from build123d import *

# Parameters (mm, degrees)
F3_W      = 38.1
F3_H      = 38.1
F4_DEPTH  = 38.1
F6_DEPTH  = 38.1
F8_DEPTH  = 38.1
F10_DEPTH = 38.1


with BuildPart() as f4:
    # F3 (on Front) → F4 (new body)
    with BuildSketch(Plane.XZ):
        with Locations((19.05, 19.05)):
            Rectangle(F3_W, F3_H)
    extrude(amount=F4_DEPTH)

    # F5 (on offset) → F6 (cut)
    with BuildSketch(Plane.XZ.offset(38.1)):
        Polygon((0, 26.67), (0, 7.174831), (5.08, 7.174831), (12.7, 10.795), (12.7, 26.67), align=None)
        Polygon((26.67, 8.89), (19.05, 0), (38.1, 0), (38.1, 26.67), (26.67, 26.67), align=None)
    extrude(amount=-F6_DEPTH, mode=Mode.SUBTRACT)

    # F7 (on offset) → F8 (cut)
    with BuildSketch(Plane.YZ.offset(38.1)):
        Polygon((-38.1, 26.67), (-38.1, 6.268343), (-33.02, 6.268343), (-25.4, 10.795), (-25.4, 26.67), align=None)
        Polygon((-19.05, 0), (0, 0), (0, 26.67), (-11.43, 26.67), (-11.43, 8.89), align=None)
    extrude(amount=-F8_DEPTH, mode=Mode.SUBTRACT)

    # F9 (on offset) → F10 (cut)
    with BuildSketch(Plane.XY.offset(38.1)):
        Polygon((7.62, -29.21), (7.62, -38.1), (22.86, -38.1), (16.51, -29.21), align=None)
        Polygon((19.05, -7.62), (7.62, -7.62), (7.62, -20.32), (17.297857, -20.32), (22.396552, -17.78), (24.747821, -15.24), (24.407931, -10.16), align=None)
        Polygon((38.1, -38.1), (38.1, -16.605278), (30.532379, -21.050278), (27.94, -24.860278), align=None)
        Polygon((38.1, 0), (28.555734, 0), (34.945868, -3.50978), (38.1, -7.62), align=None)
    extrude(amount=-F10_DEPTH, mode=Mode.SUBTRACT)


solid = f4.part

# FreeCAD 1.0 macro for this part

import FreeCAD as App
import Part
import Sketcher

V = App.Vector
Q = App.Units.Quantity

doc = App.newDocument("Part")
body = doc.addObject("PartDesign::Body", "Body")

sketch1 = body.newObject("Sketcher::SketchObject", "Sketch")
sketch1.AttachmentSupport = (doc.getObject("XZ_Plane"), [""])
sketch1.MapMode = "FlatFace"
sketch1.addGeometry([
    Part.LineSegment(V(0, 38, 0), V(0, 0, 0)),
    Part.LineSegment(V(0, 0, 0), V(38, 0, 0)),
    Part.LineSegment(V(38, 0, 0), V(38, 38, 0)),
    Part.LineSegment(V(38, 38, 0), V(0, 38, 0)),
], False)
sketch1.addConstraint([
    Sketcher.Constraint("Coincident", 0, 2, 1, 1),
    Sketcher.Constraint("Coincident", 1, 2, 2, 1),
    Sketcher.Constraint("Coincident", 2, 2, 3, 1),
    Sketcher.Constraint("Coincident", 3, 2, 0, 1),
    Sketcher.Constraint("Vertical", 0),
    Sketcher.Constraint("Horizontal", 1),
    Sketcher.Constraint("Vertical", 2),
    Sketcher.Constraint("Horizontal", 3),
    Sketcher.Constraint("Coincident", 0, 2, -1, 1),
    Sketcher.Constraint("Equal", 3, 0),
    Sketcher.Constraint("DistanceX", 1, 1, 1, 2, Q("1.5 in")),
])
pad1 = body.newObject("PartDesign::Pad", "Pad")
pad1.Profile = sketch1
pad1.Length = Q("1.5 in")

sketch2 = body.newObject("Sketcher::SketchObject", "Sketch001")
sketch2.AttachmentSupport = (doc.getObject("XZ_Plane"), [""])
sketch2.MapMode = "FlatFace"
sketch2.AttachmentOffset = App.Placement(V(0, 0, 1.5 * 25.4), App.Rotation())
sketch2.addGeometry([
    Part.LineSegment(V(0, 27, 0), V(0, 7, 0)),
    Part.LineSegment(V(0, 7, 0), V(5, 7, 0)),
    Part.LineSegment(V(5, 7, 0), V(13, 11, 0)),
    Part.LineSegment(V(13, 11, 0), V(13, 27, 0)),
    Part.LineSegment(V(13, 27, 0), V(0, 27, 0)),
    Part.LineSegment(V(27, 9, 0), V(19, 0, 0)),
    Part.LineSegment(V(19, 0, 0), V(38, 0, 0)),
    Part.LineSegment(V(38, 0, 0), V(38, 27, 0)),
    Part.LineSegment(V(38, 27, 0), V(27, 27, 0)),
    Part.LineSegment(V(27, 27, 0), V(27, 9, 0)),
], False)
sketch2.addConstraint([
    Sketcher.Constraint("Coincident", 0, 2, 1, 1),
    Sketcher.Constraint("Coincident", 1, 2, 2, 1),
    Sketcher.Constraint("Coincident", 2, 2, 3, 1),
    Sketcher.Constraint("Coincident", 3, 2, 4, 1),
    Sketcher.Constraint("Coincident", 4, 2, 0, 1),
    Sketcher.Constraint("Coincident", 5, 2, 6, 1),
    Sketcher.Constraint("Coincident", 6, 2, 7, 1),
    Sketcher.Constraint("Coincident", 7, 2, 8, 1),
    Sketcher.Constraint("Coincident", 8, 2, 9, 1),
    Sketcher.Constraint("Coincident", 9, 2, 5, 1),
    Sketcher.Constraint("Vertical", 0),
    Sketcher.Constraint("Horizontal", 1),
    Sketcher.Constraint("Vertical", 3),
    Sketcher.Constraint("Horizontal", 4),
    Sketcher.Constraint("Horizontal", 6),
    Sketcher.Constraint("Vertical", 7),
    Sketcher.Constraint("Horizontal", 8),
    Sketcher.Constraint("Vertical", 9),
    Sketcher.Constraint("PointOnObject", 0, 2, -2),
    Sketcher.Constraint("PointOnObject", 5, 2, -1),
    Sketcher.Constraint("Horizontal", 4, 2, 7, 2),
    Sketcher.Constraint("DistanceX", 1, 1, 1, 2, Q("0.2 in")),
    Sketcher.Constraint("DistanceX", 4, 2, 4, 1, Q("0.5 in")),
    Sketcher.Constraint("DistanceY", 9, 2, 9, 1, Q("0.7 in")),
    Sketcher.Constraint("DistanceX", 2, 2, 6, 2, Q("1 in")),
    Sketcher.Constraint("DistanceX", 6, 1, 6, 2, Q("0.75 in")),
    Sketcher.Constraint("DistanceX", 8, 2, 8, 1, Q("0.45 in")),
    Sketcher.Constraint("DistanceY", 7, 1, 7, 2, Q("1.05 in")),
    Sketcher.Constraint("DistanceY", 3, 1, 3, 2, Q("0.625 in")),
    Sketcher.Constraint("DistanceY", 0, 2, 0, 1, 19.495169),
])
pocket1 = body.newObject("PartDesign::Pocket", "Pocket")
pocket1.Profile = sketch2
pocket1.Length = Q("1.5 in")

sketch3 = body.newObject("Sketcher::SketchObject", "Sketch002")
sketch3.AttachmentSupport = (doc.getObject("YZ_Plane"), [""])
sketch3.MapMode = "FlatFace"
sketch3.AttachmentOffset = App.Placement(V(0, 0, 1.5 * 25.4), App.Rotation())
sketch3.addGeometry([
    Part.LineSegment(V(-38, 27, 0), V(-38, 6, 0)),
    Part.LineSegment(V(-38, 6, 0), V(-33, 6, 0)),
    Part.LineSegment(V(-33, 6, 0), V(-25, 11, 0)),
    Part.LineSegment(V(-25, 11, 0), V(-25, 27, 0)),
    Part.LineSegment(V(-25, 27, 0), V(-38, 27, 0)),
    Part.LineSegment(V(-19, 0, 0), V(0, 0, 0)),
    Part.LineSegment(V(0, 0, 0), V(0, 27, 0)),
    Part.LineSegment(V(0, 27, 0), V(-11, 27, 0)),
    Part.LineSegment(V(-11, 27, 0), V(-11, 9, 0)),
    Part.LineSegment(V(-11, 9, 0), V(-19, 0, 0)),
], False)
sketch3.addConstraint([
    Sketcher.Constraint("Coincident", 0, 2, 1, 1),
    Sketcher.Constraint("Coincident", 1, 2, 2, 1),
    Sketcher.Constraint("Coincident", 2, 2, 3, 1),
    Sketcher.Constraint("Coincident", 3, 2, 4, 1),
    Sketcher.Constraint("Coincident", 4, 2, 0, 1),
    Sketcher.Constraint("Coincident", 5, 2, 6, 1),
    Sketcher.Constraint("Coincident", 6, 2, 7, 1),
    Sketcher.Constraint("Coincident", 7, 2, 8, 1),
    Sketcher.Constraint("Coincident", 8, 2, 9, 1),
    Sketcher.Constraint("Coincident", 9, 2, 5, 1),
    Sketcher.Constraint("Vertical", 0),
    Sketcher.Constraint("Horizontal", 1),
    Sketcher.Constraint("Vertical", 3),
    Sketcher.Constraint("Horizontal", 4),
    Sketcher.Constraint("Horizontal", 5),
    Sketcher.Constraint("Vertical", 6),
    Sketcher.Constraint("Horizontal", 7),
    Sketcher.Constraint("Vertical", 8),
    Sketcher.Constraint("Coincident", 5, 2, -1, 1),
    Sketcher.Constraint("Horizontal", 4, 2, 6, 2),
    Sketcher.Constraint("DistanceX", 1, 1, 1, 2, Q("0.2 in")),
    Sketcher.Constraint("DistanceX", 4, 2, 4, 1, Q("0.5 in")),
    Sketcher.Constraint("DistanceY", 8, 2, 8, 1, Q("0.7 in")),
    Sketcher.Constraint("DistanceX", 2, 2, -1, 1, Q("1 in")),
    Sketcher.Constraint("DistanceX", 5, 1, 5, 2, Q("0.75 in")),
    Sketcher.Constraint("DistanceX", 7, 2, 7, 1, Q("0.45 in")),
    Sketcher.Constraint("DistanceY", 6, 1, 6, 2, Q("1.05 in")),
    Sketcher.Constraint("DistanceY", 3, 1, 3, 2, Q("0.625 in")),
    Sketcher.Constraint("DistanceY", 0, 2, 0, 1, 20.401657),
])
pocket2 = body.newObject("PartDesign::Pocket", "Pocket001")
pocket2.Profile = sketch3
pocket2.Length = Q("1.5 in")

sketch4 = body.newObject("Sketcher::SketchObject", "Sketch003")
sketch4.AttachmentSupport = (doc.getObject("XY_Plane"), [""])
sketch4.MapMode = "FlatFace"
sketch4.AttachmentOffset = App.Placement(V(0, 0, 1.5 * 25.4), App.Rotation())
sketch4.addGeometry([
    Part.LineSegment(V(7.6, -29.2, 0), V(7.6, -38.1, 0)),
    Part.LineSegment(V(7.6, -38.1, 0), V(22.9, -38.1, 0)),
    Part.LineSegment(V(22.9, -38.1, 0), V(16.5, -29.2, 0)),
    Part.LineSegment(V(16.5, -29.2, 0), V(7.6, -29.2, 0)),
    Part.LineSegment(V(19.1, -7.6, 0), V(7.6, -7.6, 0)),
    Part.LineSegment(V(7.6, -7.6, 0), V(7.6, -20.3, 0)),
    Part.LineSegment(V(7.6, -20.3, 0), V(17.3, -20.3, 0)),
    Part.LineSegment(V(17.3, -20.3, 0), V(22.4, -17.8, 0)),
    Part.LineSegment(V(22.4, -17.8, 0), V(24.7, -15.2, 0)),
    Part.LineSegment(V(24.7, -15.2, 0), V(24.4, -10.2, 0)),
    Part.LineSegment(V(24.4, -10.2, 0), V(19.1, -7.6, 0)),
    Part.LineSegment(V(38.1, -38.1, 0), V(38.1, -16.6, 0)),
    Part.LineSegment(V(38.1, -16.6, 0), V(30.5, -21.1, 0)),
    Part.LineSegment(V(30.5, -21.1, 0), V(27.9, -24.9, 0)),
    Part.LineSegment(V(27.9, -24.9, 0), V(38.1, -38.1, 0)),
    Part.LineSegment(V(38.1, 0, 0), V(28.6, 0, 0)),
    Part.LineSegment(V(28.6, 0, 0), V(34.9, -3.5, 0)),
    Part.LineSegment(V(34.9, -3.5, 0), V(38.1, -7.6, 0)),
    Part.LineSegment(V(38.1, -7.6, 0), V(38.1, 0, 0)),
], False)
sketch4.addConstraint([
    Sketcher.Constraint("Coincident", 0, 2, 1, 1),
    Sketcher.Constraint("Coincident", 1, 2, 2, 1),
    Sketcher.Constraint("Coincident", 2, 2, 3, 1),
    Sketcher.Constraint("Coincident", 3, 2, 0, 1),
    Sketcher.Constraint("Coincident", 4, 2, 5, 1),
    Sketcher.Constraint("Coincident", 5, 2, 6, 1),
    Sketcher.Constraint("Coincident", 6, 2, 7, 1),
    Sketcher.Constraint("Coincident", 7, 2, 8, 1),
    Sketcher.Constraint("Coincident", 8, 2, 9, 1),
    Sketcher.Constraint("Coincident", 9, 2, 10, 1),
    Sketcher.Constraint("Coincident", 10, 2, 4, 1),
    Sketcher.Constraint("Coincident", 11, 2, 12, 1),
    Sketcher.Constraint("Coincident", 12, 2, 13, 1),
    Sketcher.Constraint("Coincident", 13, 2, 14, 1),
    Sketcher.Constraint("Coincident", 14, 2, 11, 1),
    Sketcher.Constraint("Coincident", 15, 2, 16, 1),
    Sketcher.Constraint("Coincident", 16, 2, 17, 1),
    Sketcher.Constraint("Coincident", 17, 2, 18, 1),
    Sketcher.Constraint("Coincident", 18, 2, 15, 1),
    Sketcher.Constraint("Vertical", 0),
    Sketcher.Constraint("Horizontal", 1),
    Sketcher.Constraint("Horizontal", 3),
    Sketcher.Constraint("Horizontal", 4),
    Sketcher.Constraint("Vertical", 5),
    Sketcher.Constraint("Horizontal", 6),
    Sketcher.Constraint("Vertical", 11),
    Sketcher.Constraint("Horizontal", 15),
    Sketcher.Constraint("Vertical", 18),
    Sketcher.Constraint("PointOnObject", 15, 2, -1),
    Sketcher.Constraint("Parallel", 14, 17),
    Sketcher.Constraint("Horizontal", 1, 2, 14, 2),
    Sketcher.Constraint("Horizontal", 10, 2, 17, 2),
    Sketcher.Constraint("Vertical", 3, 2, 4, 2),
    Sketcher.Constraint("Vertical", 14, 2, 17, 2),
    Sketcher.Constraint("Equal", 3, 0),
    Sketcher.Constraint("DistanceX", 1, 1, 1, 2, Q("0.6 in")),
    Sketcher.Constraint("DistanceY", 5, 2, 5, 1, Q("0.5 in")),
    Sketcher.Constraint("DistanceY", 18, 1, 18, 2, Q("0.3 in")),
    Sketcher.Constraint("DistanceX", 3, 2, 3, 1, Q("0.35 in")),
    Sketcher.Constraint("DistanceX", 4, 2, 4, 1, Q("0.45 in")),
    Sketcher.Constraint("DistanceX", -1, 1, 0, 2, Q("0.3 in")),
    Sketcher.Constraint("DistanceY", 0, 2, -1, 1, Q("1.5 in")),
    Sketcher.Constraint("DistanceY", 7, 2, -1, 1, Q("0.7 in")),
    Sketcher.Constraint("DistanceY", 8, 2, -1, 1, Q("0.6 in")),
    Sketcher.Constraint("DistanceY", 9, 2, -1, 1, Q("0.4 in")),
    Sketcher.Constraint("DistanceX", -1, 1, 11, 2, Q("1.5 in")),
    Sketcher.Constraint("DistanceX", -1, 1, 13, 2, Q("1.1 in")),
    Sketcher.Constraint("DistanceY", 13, 2, 12, 2, Q("0.15 in")),
    Sketcher.Constraint("DistanceY", 12, 2, 11, 2, Q("0.175 in")),
    Sketcher.Constraint("Distance", 7, 5.69634),
    Sketcher.Constraint("Distance", 13, 4.608311),
    Sketcher.Constraint("Distance", 17, 5.180971),
    Sketcher.Constraint("DistanceX", 6, 1, 6, 2, 9.677857),
    Sketcher.Constraint("DistanceX", 15, 2, 15, 1, 9.544266),
    Sketcher.Constraint("DistanceY", 11, 1, 11, 2, 21.494722),
    Sketcher.Constraint("DistanceX", -1, 1, 8, 2, 24.747821),
    Sketcher.Constraint("DistanceX", -1, 1, 9, 2, 24.407931),
])
pocket3 = body.newObject("PartDesign::Pocket", "Pocket002")
pocket3.Profile = sketch4
pocket3.Length = Q("1.5 in")

doc.recompute()
